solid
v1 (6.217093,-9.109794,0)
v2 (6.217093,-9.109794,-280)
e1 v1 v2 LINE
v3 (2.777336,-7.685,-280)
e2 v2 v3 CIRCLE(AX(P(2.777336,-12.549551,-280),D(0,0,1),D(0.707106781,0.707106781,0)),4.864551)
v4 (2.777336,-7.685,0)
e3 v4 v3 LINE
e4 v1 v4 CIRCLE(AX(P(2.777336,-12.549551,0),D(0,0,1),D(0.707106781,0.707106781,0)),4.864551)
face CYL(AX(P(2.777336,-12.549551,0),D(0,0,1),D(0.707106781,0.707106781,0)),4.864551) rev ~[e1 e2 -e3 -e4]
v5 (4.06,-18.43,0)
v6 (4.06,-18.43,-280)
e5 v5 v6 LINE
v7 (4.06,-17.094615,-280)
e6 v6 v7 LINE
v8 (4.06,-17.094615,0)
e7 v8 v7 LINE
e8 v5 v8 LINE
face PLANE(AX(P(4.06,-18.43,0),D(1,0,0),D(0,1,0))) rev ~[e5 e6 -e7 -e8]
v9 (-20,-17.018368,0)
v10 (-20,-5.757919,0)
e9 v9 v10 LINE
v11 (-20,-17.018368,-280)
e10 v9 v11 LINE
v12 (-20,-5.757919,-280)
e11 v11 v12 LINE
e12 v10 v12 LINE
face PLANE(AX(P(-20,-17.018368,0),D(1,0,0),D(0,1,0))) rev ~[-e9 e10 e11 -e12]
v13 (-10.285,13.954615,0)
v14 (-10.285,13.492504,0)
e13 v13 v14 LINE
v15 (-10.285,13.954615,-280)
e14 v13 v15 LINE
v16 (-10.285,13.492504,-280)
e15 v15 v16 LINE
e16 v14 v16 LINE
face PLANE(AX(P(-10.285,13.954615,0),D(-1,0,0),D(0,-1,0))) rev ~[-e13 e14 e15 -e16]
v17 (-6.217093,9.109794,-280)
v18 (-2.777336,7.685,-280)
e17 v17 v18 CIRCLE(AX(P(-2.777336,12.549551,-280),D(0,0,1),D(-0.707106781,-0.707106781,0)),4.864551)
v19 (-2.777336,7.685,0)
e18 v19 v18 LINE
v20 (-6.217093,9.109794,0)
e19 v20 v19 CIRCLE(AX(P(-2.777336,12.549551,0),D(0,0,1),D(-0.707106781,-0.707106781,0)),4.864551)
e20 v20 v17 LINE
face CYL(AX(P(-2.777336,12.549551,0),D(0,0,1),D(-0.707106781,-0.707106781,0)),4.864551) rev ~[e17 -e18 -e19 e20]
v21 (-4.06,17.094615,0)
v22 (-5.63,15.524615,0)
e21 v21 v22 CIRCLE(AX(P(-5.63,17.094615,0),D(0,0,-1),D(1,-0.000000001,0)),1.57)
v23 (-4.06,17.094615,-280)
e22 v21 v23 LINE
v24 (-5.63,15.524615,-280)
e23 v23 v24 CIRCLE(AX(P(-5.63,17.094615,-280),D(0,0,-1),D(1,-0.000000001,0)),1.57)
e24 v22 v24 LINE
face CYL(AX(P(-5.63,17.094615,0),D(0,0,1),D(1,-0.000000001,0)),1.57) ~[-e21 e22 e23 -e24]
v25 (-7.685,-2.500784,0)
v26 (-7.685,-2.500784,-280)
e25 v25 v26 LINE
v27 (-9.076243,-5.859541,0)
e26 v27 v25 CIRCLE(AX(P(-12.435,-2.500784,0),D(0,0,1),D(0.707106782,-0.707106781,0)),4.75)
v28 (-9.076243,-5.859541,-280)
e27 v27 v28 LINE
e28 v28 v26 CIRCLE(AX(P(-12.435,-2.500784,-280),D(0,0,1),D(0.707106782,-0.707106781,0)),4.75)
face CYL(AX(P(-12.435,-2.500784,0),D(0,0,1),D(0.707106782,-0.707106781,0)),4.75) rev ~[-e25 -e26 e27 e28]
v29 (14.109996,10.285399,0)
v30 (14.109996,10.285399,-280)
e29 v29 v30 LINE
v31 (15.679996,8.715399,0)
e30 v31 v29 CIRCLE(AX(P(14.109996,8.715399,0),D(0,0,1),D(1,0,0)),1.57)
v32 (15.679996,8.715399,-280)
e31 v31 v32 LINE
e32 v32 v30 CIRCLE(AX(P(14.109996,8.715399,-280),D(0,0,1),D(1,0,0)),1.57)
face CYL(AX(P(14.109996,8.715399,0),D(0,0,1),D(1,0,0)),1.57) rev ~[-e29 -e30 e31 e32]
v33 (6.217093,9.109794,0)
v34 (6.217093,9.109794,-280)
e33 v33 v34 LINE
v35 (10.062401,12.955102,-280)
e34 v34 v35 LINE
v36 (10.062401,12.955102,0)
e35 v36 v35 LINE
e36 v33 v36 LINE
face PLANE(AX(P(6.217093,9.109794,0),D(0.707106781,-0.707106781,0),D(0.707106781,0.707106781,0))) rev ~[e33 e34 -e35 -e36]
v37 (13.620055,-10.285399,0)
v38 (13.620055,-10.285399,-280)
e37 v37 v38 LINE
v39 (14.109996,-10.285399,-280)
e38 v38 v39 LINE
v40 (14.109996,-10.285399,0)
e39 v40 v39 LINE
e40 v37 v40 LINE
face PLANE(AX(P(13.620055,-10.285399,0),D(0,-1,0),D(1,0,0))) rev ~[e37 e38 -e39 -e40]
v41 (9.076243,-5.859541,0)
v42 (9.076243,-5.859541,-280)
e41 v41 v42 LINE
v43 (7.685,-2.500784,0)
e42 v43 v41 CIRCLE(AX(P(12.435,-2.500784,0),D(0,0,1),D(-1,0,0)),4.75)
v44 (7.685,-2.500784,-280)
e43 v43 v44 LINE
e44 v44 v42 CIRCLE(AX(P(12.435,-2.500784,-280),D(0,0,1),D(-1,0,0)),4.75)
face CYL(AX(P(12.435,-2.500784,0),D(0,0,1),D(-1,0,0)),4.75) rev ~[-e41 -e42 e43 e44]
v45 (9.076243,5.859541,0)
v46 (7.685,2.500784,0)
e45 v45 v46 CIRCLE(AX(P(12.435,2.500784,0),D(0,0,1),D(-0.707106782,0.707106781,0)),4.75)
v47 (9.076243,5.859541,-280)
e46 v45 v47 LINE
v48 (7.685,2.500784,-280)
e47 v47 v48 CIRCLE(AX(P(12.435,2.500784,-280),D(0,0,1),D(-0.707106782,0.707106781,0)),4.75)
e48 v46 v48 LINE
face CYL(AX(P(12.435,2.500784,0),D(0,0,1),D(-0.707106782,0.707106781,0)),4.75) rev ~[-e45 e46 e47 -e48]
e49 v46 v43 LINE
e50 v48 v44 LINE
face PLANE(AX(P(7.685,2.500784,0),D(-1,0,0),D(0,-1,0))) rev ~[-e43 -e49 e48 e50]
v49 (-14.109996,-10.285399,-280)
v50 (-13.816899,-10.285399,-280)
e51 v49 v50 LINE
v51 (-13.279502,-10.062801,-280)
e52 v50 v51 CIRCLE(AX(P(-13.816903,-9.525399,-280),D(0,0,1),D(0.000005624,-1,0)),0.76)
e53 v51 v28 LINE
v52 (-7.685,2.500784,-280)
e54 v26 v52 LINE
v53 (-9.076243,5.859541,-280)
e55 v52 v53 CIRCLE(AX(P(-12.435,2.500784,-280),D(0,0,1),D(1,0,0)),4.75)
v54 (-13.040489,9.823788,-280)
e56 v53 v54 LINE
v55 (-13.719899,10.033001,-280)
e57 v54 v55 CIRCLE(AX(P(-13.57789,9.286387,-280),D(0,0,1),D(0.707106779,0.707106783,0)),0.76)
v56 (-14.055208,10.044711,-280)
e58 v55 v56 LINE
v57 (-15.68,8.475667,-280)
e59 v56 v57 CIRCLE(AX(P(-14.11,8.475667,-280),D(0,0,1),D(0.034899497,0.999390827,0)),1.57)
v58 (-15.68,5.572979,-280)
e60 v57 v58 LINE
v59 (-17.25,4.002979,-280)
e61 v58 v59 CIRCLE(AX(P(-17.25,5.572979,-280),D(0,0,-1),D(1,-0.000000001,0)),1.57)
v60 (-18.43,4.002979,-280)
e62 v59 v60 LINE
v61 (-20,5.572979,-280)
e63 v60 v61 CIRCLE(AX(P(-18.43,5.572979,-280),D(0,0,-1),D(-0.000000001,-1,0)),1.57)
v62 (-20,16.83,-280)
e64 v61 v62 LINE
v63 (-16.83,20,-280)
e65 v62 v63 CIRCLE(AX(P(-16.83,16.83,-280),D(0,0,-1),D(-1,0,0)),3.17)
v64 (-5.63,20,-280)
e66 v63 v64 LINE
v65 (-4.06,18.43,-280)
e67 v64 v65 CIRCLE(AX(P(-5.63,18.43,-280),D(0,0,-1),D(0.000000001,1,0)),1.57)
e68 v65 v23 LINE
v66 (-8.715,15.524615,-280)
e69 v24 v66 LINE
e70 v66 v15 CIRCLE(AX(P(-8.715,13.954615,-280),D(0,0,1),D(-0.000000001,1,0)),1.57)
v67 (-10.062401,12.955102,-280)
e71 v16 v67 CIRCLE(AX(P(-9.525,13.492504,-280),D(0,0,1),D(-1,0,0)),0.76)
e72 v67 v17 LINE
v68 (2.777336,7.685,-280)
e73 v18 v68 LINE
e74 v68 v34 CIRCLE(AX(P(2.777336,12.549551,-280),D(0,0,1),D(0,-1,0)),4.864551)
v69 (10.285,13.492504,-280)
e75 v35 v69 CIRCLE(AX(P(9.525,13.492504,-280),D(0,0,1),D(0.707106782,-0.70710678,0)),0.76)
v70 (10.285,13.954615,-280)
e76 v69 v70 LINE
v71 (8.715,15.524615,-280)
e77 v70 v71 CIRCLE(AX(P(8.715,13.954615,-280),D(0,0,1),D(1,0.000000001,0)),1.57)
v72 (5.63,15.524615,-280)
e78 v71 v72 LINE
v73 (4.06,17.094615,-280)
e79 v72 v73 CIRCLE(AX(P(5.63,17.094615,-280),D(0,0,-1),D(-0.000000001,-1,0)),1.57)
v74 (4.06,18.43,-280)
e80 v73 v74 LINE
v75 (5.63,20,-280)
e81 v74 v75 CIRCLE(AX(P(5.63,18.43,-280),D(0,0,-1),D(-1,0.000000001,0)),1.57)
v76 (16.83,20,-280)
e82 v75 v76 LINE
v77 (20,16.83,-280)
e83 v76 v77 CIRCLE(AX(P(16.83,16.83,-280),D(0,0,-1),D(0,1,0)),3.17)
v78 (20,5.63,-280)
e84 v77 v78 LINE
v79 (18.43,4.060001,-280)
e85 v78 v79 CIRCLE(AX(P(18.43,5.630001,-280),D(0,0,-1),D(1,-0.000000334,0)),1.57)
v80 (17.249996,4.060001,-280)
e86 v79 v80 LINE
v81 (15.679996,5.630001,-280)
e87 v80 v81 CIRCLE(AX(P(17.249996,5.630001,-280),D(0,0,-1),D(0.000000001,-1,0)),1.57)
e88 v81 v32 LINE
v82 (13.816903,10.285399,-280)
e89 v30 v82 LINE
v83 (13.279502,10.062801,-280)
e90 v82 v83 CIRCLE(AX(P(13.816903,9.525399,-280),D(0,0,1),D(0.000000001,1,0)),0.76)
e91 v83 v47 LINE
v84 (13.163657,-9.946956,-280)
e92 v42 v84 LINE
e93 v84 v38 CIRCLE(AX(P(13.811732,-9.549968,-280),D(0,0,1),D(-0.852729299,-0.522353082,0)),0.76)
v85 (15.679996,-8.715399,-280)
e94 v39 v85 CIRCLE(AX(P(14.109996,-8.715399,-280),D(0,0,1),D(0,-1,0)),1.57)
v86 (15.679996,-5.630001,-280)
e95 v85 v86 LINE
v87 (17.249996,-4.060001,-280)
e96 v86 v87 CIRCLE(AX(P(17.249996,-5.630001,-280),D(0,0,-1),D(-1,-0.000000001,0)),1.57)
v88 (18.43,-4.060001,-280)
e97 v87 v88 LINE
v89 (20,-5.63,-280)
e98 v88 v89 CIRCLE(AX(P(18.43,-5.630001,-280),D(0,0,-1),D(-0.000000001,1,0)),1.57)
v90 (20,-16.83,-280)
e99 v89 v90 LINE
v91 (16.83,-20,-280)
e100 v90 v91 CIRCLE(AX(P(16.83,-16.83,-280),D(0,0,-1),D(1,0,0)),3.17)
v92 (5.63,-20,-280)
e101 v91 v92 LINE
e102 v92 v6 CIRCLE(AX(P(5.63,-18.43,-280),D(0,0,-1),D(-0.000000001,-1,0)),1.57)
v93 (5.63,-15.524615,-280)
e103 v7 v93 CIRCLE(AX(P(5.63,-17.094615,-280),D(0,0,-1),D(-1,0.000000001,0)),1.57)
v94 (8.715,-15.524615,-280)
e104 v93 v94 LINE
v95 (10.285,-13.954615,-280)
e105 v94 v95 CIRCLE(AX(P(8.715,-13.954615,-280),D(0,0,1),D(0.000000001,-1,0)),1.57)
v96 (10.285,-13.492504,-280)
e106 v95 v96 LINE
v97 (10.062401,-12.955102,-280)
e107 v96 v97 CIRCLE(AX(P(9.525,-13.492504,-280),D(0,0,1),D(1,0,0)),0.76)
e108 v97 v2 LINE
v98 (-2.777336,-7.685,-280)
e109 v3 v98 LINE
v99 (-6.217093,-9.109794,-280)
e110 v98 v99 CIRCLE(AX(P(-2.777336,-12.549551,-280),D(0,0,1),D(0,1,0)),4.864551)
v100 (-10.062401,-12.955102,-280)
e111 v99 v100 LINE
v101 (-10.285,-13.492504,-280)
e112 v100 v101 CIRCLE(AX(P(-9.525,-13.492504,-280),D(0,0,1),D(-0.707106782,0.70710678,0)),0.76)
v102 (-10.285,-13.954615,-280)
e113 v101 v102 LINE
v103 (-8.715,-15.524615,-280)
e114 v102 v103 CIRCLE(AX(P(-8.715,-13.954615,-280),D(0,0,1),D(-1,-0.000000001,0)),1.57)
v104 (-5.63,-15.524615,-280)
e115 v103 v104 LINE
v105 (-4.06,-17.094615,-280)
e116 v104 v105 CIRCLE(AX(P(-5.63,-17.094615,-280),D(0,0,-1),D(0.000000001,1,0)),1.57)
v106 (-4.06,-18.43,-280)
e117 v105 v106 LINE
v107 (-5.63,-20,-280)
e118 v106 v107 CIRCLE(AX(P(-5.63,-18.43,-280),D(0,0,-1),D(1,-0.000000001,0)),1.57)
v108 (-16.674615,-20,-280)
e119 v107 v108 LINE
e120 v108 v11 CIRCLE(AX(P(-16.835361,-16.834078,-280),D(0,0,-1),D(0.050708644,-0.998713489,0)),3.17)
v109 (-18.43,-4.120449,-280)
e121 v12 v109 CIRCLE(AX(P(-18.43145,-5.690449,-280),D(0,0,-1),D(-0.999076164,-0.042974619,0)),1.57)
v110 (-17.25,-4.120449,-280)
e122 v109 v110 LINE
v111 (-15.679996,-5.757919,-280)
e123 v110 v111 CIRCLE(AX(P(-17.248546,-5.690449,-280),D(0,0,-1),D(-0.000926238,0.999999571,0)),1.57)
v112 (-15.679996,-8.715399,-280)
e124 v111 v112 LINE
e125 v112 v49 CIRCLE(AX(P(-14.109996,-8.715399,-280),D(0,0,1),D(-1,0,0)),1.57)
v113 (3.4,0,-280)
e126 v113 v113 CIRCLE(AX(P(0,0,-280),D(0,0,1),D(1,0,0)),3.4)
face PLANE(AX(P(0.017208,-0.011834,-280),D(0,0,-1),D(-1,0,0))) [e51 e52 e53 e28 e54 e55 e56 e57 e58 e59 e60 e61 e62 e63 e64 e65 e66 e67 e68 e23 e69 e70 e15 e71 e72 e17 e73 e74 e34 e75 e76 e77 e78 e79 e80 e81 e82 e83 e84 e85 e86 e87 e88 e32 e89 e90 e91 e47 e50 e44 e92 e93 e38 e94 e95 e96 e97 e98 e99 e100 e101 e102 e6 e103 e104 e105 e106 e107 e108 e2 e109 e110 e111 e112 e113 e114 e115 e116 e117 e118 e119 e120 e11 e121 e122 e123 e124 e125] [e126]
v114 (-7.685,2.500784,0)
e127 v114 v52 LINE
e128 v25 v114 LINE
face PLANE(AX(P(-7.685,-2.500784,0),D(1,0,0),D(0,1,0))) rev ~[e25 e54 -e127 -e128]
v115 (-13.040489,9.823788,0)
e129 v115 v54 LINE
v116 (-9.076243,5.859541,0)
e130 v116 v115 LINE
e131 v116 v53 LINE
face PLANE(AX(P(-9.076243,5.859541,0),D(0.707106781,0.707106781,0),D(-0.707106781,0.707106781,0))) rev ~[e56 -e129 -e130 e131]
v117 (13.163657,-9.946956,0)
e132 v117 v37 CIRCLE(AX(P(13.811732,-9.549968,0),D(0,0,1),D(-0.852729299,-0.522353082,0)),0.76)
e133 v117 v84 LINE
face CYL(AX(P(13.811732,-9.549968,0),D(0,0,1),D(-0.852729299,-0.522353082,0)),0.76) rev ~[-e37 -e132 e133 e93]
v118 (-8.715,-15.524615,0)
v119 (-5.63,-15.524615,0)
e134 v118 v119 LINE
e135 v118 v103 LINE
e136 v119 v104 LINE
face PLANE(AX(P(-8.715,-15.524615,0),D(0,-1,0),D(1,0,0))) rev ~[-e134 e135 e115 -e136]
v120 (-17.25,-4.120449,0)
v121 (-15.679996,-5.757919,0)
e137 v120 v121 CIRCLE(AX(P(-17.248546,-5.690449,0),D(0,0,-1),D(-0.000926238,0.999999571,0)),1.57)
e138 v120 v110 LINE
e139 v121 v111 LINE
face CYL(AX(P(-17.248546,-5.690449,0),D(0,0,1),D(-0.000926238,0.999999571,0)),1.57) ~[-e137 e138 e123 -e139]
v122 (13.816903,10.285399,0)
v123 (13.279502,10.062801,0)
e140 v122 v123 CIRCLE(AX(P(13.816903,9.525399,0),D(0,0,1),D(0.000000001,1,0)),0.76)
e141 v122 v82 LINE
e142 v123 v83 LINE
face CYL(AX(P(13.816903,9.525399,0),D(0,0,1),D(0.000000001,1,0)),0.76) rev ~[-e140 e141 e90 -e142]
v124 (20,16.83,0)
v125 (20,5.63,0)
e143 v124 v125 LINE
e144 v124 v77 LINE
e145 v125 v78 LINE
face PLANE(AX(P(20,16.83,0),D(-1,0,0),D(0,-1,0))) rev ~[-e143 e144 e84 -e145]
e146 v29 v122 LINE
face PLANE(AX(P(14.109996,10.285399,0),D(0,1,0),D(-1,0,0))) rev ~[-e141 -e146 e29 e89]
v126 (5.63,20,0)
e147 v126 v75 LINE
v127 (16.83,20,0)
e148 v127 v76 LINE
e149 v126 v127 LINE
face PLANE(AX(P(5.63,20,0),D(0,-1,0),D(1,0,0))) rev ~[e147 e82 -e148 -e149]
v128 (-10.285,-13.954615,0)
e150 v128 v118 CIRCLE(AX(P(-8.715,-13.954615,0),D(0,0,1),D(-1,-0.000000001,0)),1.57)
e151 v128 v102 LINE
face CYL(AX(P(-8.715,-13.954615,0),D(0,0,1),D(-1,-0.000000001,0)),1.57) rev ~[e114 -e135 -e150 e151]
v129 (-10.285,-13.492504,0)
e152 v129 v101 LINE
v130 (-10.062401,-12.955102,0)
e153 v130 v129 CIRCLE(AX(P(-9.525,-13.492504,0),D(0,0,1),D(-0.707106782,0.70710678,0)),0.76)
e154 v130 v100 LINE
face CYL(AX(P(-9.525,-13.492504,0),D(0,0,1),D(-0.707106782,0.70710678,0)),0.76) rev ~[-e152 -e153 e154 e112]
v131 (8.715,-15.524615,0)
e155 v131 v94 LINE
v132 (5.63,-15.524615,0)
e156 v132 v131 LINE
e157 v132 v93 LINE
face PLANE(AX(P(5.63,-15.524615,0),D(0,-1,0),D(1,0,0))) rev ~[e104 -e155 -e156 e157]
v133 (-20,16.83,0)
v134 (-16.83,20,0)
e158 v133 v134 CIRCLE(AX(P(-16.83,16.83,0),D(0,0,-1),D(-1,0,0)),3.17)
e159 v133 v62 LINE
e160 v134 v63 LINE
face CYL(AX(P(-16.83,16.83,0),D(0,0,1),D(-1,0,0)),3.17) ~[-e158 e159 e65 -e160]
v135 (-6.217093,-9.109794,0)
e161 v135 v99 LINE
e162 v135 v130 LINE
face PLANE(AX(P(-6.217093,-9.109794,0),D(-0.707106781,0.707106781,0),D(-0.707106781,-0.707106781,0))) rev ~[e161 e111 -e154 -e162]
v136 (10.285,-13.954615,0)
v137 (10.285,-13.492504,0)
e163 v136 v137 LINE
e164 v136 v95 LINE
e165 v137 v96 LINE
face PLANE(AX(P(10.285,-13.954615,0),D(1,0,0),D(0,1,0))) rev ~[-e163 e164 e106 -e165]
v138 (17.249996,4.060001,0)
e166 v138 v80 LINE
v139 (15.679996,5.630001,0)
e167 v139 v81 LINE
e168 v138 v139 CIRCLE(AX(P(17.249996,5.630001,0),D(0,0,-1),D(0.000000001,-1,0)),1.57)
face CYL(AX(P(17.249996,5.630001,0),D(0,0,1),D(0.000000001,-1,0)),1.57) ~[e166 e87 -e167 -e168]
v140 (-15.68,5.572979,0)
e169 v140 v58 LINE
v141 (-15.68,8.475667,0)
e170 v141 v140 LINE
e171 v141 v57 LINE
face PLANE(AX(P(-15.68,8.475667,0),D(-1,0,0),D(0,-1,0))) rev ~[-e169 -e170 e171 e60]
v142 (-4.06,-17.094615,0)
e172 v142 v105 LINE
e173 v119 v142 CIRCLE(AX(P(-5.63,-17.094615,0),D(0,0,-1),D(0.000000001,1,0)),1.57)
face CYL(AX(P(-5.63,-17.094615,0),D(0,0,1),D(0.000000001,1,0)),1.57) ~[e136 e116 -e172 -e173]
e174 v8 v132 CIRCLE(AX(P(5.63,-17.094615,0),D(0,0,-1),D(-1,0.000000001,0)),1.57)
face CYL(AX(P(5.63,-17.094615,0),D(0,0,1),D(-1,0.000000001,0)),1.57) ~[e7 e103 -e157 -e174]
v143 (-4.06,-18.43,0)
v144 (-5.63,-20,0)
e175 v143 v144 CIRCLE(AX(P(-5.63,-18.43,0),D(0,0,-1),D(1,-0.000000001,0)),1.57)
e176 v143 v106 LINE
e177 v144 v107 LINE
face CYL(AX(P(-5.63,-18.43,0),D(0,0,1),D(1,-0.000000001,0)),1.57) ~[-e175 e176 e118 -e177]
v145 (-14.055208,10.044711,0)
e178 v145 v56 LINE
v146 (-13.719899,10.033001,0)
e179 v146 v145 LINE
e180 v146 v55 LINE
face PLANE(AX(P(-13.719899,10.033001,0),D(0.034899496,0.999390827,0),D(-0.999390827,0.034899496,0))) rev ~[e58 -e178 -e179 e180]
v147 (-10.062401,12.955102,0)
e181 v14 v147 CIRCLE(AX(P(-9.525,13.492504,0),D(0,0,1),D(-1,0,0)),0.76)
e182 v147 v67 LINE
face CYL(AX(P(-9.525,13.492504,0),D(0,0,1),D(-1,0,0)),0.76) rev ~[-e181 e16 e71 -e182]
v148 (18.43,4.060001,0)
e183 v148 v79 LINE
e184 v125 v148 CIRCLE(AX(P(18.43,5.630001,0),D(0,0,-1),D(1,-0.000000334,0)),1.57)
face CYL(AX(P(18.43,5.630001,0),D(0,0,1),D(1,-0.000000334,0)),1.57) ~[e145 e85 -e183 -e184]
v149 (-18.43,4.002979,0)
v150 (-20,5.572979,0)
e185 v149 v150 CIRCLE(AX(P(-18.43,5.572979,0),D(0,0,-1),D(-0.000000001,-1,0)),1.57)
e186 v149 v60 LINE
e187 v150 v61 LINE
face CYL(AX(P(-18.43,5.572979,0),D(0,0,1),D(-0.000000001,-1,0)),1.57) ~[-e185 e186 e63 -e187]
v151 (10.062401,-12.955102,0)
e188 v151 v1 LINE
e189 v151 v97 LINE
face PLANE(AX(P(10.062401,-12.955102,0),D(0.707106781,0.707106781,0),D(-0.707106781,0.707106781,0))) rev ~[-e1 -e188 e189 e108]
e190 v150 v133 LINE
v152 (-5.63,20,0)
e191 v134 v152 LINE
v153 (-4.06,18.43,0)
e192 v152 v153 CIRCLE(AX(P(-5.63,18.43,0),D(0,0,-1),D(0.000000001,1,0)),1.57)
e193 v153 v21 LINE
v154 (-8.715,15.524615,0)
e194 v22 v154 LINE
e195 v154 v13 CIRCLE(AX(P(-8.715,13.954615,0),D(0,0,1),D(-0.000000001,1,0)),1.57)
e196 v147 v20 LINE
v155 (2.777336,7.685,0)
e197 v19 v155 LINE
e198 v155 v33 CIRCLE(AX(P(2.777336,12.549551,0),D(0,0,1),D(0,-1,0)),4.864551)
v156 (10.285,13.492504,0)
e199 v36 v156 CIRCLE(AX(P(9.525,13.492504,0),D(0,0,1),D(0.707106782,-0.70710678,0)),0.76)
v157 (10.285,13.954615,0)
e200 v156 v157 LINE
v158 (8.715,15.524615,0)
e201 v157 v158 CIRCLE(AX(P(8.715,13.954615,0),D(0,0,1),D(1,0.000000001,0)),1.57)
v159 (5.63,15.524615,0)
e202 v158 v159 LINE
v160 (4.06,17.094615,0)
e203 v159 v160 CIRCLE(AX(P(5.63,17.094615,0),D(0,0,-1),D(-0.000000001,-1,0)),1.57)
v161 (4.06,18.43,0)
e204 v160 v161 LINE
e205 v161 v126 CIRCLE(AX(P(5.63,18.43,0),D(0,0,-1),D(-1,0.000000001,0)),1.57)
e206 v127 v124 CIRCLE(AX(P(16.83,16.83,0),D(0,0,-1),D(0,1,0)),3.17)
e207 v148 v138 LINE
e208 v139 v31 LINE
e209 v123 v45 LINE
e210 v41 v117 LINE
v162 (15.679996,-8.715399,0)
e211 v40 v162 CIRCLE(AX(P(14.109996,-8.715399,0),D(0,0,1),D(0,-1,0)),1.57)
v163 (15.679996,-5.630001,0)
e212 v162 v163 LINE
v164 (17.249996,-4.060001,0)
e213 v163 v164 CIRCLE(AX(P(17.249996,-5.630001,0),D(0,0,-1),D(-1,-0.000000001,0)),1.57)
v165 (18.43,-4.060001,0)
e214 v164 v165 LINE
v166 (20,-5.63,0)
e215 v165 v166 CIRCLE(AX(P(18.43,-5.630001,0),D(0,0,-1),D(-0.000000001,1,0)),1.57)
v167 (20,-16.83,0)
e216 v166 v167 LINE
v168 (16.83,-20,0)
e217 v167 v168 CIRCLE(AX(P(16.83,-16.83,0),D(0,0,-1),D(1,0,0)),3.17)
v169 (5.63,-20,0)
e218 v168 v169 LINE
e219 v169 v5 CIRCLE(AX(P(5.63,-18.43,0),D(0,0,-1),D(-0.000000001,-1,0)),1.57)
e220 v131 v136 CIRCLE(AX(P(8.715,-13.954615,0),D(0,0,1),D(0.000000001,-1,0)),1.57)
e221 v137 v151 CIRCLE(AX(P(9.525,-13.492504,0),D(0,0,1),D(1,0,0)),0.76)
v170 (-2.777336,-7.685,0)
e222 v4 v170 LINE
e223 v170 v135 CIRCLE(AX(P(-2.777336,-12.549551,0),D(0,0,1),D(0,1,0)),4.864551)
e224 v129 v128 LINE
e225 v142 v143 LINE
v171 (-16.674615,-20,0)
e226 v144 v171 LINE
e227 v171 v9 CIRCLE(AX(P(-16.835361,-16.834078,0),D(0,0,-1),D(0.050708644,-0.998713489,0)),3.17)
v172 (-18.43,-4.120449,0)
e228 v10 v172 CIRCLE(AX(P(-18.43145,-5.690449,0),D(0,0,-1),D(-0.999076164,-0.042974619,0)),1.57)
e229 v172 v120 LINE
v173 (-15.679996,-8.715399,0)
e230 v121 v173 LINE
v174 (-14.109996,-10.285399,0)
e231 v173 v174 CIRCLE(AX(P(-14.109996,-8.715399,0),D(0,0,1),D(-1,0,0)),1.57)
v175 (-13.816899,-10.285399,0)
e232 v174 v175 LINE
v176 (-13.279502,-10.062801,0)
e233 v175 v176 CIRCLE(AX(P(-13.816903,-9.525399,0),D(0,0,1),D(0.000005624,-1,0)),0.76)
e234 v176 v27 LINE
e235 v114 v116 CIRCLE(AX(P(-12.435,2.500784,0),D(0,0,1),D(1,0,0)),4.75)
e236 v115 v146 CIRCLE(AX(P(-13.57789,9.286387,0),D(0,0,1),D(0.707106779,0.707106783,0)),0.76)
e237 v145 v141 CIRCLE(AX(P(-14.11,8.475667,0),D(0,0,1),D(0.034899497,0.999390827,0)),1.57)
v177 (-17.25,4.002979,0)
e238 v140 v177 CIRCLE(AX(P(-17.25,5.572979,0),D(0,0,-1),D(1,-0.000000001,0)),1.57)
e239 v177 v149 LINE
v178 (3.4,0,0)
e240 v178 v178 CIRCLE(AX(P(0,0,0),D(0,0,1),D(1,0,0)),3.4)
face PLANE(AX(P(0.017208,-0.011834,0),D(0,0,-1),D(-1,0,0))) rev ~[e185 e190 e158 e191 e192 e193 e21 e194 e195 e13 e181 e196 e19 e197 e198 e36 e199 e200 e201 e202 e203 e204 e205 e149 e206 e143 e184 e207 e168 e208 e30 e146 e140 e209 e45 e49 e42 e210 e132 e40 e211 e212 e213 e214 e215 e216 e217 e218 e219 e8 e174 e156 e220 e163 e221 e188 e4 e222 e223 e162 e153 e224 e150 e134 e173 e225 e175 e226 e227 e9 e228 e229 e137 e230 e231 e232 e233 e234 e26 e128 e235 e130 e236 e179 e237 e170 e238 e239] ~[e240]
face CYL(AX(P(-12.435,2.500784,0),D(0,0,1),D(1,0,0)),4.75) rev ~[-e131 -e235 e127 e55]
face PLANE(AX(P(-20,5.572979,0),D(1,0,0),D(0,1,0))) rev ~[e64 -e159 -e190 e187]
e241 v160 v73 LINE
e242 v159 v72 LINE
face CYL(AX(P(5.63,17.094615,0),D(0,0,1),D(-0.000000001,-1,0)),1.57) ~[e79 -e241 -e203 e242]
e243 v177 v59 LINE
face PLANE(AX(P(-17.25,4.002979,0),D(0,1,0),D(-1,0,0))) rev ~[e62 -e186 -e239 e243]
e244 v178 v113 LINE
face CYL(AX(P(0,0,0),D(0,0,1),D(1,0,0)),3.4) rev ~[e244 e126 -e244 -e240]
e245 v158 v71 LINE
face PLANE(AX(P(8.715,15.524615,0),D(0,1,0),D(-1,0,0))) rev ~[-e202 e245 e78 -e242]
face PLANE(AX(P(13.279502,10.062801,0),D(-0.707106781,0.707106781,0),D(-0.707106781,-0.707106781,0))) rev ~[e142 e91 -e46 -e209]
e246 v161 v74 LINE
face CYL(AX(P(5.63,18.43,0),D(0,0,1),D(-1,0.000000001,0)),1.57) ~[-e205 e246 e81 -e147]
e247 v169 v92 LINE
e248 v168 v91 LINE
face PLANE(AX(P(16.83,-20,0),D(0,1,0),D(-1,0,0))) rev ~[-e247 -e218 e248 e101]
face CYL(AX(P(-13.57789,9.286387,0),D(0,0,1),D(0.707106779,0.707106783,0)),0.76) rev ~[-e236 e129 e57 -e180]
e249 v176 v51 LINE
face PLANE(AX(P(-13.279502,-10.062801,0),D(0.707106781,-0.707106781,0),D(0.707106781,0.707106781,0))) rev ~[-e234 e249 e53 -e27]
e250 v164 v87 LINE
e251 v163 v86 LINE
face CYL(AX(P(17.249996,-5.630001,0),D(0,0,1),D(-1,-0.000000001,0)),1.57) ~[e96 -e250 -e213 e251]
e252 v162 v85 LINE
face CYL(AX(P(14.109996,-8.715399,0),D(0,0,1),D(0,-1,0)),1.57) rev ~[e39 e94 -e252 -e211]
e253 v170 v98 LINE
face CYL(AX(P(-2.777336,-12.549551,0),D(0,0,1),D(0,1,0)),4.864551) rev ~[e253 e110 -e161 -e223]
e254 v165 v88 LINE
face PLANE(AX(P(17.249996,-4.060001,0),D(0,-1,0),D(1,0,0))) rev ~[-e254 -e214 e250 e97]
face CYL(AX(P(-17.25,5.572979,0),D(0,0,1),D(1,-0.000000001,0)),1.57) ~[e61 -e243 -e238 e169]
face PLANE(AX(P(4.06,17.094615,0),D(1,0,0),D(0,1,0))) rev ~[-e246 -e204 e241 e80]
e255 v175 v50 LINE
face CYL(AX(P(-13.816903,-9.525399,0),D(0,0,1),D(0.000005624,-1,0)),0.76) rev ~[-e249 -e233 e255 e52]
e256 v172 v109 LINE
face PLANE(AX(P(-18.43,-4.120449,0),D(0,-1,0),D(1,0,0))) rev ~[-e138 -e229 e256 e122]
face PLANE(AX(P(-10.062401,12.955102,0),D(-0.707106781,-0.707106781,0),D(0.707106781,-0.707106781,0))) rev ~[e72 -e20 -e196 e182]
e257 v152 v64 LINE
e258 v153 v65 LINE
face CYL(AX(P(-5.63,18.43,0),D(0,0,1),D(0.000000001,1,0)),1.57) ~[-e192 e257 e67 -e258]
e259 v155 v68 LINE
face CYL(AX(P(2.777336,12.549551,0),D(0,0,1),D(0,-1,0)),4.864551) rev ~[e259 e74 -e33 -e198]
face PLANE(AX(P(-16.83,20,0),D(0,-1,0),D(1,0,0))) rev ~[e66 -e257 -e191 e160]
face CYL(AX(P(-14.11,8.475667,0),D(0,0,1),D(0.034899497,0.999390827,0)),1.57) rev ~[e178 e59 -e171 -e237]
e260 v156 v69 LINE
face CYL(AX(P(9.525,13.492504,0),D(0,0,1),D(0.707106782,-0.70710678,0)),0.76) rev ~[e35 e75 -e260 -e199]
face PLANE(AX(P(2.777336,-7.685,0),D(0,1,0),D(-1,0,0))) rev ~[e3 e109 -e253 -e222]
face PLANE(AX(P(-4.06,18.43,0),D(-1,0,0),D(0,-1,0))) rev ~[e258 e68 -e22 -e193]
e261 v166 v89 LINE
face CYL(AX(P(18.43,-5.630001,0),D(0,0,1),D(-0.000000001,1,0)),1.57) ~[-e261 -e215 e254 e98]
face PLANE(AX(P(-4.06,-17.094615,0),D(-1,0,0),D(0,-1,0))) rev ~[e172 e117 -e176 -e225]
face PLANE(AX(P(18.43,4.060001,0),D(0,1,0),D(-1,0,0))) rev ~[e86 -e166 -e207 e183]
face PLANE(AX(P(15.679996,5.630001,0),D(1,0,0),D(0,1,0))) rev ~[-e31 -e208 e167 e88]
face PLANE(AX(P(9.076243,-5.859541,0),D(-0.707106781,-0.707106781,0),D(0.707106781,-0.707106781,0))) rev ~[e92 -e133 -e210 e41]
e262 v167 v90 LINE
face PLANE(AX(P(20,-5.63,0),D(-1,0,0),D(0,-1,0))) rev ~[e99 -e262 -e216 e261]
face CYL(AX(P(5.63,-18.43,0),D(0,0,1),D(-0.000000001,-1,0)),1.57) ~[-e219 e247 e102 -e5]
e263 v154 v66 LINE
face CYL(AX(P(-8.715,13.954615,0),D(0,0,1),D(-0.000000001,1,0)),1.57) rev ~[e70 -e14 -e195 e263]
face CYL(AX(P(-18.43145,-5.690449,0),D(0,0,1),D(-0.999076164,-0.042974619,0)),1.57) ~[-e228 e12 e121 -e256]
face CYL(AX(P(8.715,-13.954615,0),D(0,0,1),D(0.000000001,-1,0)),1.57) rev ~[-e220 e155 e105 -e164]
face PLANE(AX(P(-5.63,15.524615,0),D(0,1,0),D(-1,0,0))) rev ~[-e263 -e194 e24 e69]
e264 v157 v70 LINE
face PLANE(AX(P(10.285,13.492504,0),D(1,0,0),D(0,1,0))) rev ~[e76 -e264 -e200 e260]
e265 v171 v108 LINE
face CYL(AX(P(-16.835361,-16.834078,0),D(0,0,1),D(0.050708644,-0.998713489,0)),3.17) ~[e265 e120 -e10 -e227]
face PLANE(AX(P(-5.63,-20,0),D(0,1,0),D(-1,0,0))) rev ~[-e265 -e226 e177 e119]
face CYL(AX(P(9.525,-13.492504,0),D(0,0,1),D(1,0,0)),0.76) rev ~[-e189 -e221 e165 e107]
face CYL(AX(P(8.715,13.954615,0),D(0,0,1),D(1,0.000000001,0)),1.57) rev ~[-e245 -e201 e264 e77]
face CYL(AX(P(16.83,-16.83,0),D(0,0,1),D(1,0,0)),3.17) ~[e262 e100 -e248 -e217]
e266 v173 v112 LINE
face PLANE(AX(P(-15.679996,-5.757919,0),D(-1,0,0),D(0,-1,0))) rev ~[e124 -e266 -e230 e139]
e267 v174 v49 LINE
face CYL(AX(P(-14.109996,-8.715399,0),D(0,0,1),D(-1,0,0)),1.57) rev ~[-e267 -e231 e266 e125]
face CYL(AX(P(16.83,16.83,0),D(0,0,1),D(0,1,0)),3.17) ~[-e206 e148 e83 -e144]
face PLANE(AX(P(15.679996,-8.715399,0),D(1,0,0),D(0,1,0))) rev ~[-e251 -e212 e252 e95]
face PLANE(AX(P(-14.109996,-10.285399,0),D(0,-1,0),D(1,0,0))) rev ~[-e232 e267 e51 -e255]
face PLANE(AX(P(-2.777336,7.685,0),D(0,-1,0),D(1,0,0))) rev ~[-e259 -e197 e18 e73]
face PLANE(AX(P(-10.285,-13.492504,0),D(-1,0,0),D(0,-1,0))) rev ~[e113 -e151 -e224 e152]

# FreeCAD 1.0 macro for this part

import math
import FreeCAD as App
import Part
import Sketcher

V = App.Vector
Q = App.Units.Quantity

doc = App.newDocument("Part")
body = doc.addObject("PartDesign::Body", "Body")

# Sketch on XY plane
sketch1 = body.newObject("Sketcher::SketchObject", "Sketch")
sketch1.AttachmentSupport = (doc.getObject("XY_Plane"), [""])
sketch1.MapMode = "FlatFace"
sketch1.addGeometry(Part.LineSegment(V(-5.63, -15.52, 0), V(-8.71, -15.52, 0)), False)
sketch1.addGeometry(Part.ArcOfCircle(Part.Circle(V(-8.71, -13.95, 0), V(0, 0, 1), 1.57), math.radians(-180), math.radians(-90)), False)
sketch1.addGeometry(Part.LineSegment(V(-10.29, -13.95, 0), V(-10.29, -13.49, 0)), False)
sketch1.addGeometry(Part.ArcOfCircle(Part.Circle(V(-9.52, -13.49, 0), V(0, 0, 1), 0.76), math.radians(135), math.radians(180)), False)
sketch1.addGeometry(Part.LineSegment(V(-10.06, -12.96, 0), V(-6.22, -9.11, 0)), False)
sketch1.addGeometry(Part.ArcOfCircle(Part.Circle(V(-2.78, -12.55, 0), V(0, 0, 1), 4.86), math.radians(90), math.radians(135)), False)
sketch1.addGeometry(Part.LineSegment(V(-2.78, -7.68, 0), V(2.78, -7.68, 0)), False)
sketch1.addGeometry(Part.ArcOfCircle(Part.Circle(V(2.78, -12.55, 0), V(0, 0, 1), 4.86), math.radians(45), math.radians(90)), False)
sketch1.addGeometry(Part.LineSegment(V(6.22, -9.11, 0), V(10.06, -12.96, 0)), False)
sketch1.addGeometry(Part.ArcOfCircle(Part.Circle(V(9.52, -13.49, 0), V(0, 0, 1), 0.76), math.radians(0), math.radians(45)), False)
sketch1.addGeometry(Part.LineSegment(V(10.29, -13.49, 0), V(10.29, -13.95, 0)), False)
sketch1.addGeometry(Part.ArcOfCircle(Part.Circle(V(8.71, -13.95, 0), V(0, 0, 1), 1.57), math.radians(-90), math.radians(0)), False)
sketch1.addGeometry(Part.LineSegment(V(8.71, -15.52, 0), V(5.63, -15.52, 0)), False)
sketch1.addGeometry(Part.ArcOfCircle(Part.Circle(V(5.63, -17.09, 0), V(0, 0, 1), 1.57), math.radians(90), math.radians(180)), False)
sketch1.addGeometry(Part.LineSegment(V(4.06, -17.09, 0), V(4.06, -18.43, 0)), False)
sketch1.addGeometry(Part.ArcOfCircle(Part.Circle(V(5.63, -18.43, 0), V(0, 0, 1), 1.57), math.radians(-180), math.radians(-90)), False)
sketch1.addGeometry(Part.LineSegment(V(5.63, -20, 0), V(16.83, -20, 0)), False)
sketch1.addGeometry(Part.ArcOfCircle(Part.Circle(V(16.83, -16.83, 0), V(0, 0, 1), 3.17), math.radians(-90), math.radians(0)), False)
sketch1.addGeometry(Part.LineSegment(V(20, -16.83, 0), V(20, -5.63, 0)), False)
sketch1.addGeometry(Part.ArcOfCircle(Part.Circle(V(18.43, -5.63, 0), V(0, 0, 1), 1.57), math.radians(0), math.radians(90)), False)
sketch1.addGeometry(Part.LineSegment(V(18.43, -4.06, 0), V(17.25, -4.06, 0)), False)
sketch1.addGeometry(Part.ArcOfCircle(Part.Circle(V(17.25, -5.63, 0), V(0, 0, 1), 1.57), math.radians(90), math.radians(180)), False)
sketch1.addGeometry(Part.LineSegment(V(15.68, -5.63, 0), V(15.68, -8.72, 0)), False)
sketch1.addGeometry(Part.ArcOfCircle(Part.Circle(V(14.11, -8.72, 0), V(0, 0, 1), 1.57), math.radians(-90), math.radians(0)), False)
sketch1.addGeometry(Part.LineSegment(V(14.11, -10.29, 0), V(13.62, -10.29, 0)), False)
sketch1.addGeometry(Part.ArcOfCircle(Part.Circle(V(13.81, -9.55, 0), V(0, 0, 1), 0.76), math.radians(-149), math.radians(-105)), False)
sketch1.addGeometry(Part.LineSegment(V(13.16, -9.95, 0), V(9.08, -5.86, 0)), False)
sketch1.addGeometry(Part.ArcOfCircle(Part.Circle(V(12.44, -2.5, 0), V(0, 0, 1), 4.75), math.radians(-180), math.radians(-135)), False)
sketch1.addGeometry(Part.LineSegment(V(7.68, -2.5, 0), V(7.68, 2.5, 0)), False)
sketch1.addGeometry(Part.ArcOfCircle(Part.Circle(V(12.44, 2.5, 0), V(0, 0, 1), 4.75), math.radians(135), math.radians(180)), False)
sketch1.addGeometry(Part.LineSegment(V(9.08, 5.86, 0), V(13.28, 10.06, 0)), False)
sketch1.addGeometry(Part.ArcOfCircle(Part.Circle(V(13.82, 9.53, 0), V(0, 0, 1), 0.76), math.radians(90), math.radians(135)), False)
sketch1.addGeometry(Part.LineSegment(V(13.82, 10.29, 0), V(14.11, 10.29, 0)), False)
sketch1.addGeometry(Part.ArcOfCircle(Part.Circle(V(14.11, 8.72, 0), V(0, 0, 1), 1.57), math.radians(0), math.radians(90)), False)
sketch1.addGeometry(Part.LineSegment(V(15.68, 8.72, 0), V(15.68, 5.63, 0)), False)
sketch1.addGeometry(Part.ArcOfCircle(Part.Circle(V(17.25, 5.63, 0), V(0, 0, 1), 1.57), math.radians(180), math.radians(270)), False)
sketch1.addGeometry(Part.LineSegment(V(17.25, 4.06, 0), V(18.43, 4.06, 0)), False)
sketch1.addGeometry(Part.ArcOfCircle(Part.Circle(V(18.43, 5.63, 0), V(0, 0, 1), 1.57), math.radians(-90), math.radians(0)), False)
sketch1.addGeometry(Part.LineSegment(V(20, 5.63, 0), V(20, 16.83, 0)), False)
sketch1.addGeometry(Part.ArcOfCircle(Part.Circle(V(16.83, 16.83, 0), V(0, 0, 1), 3.17), math.radians(0), math.radians(90)), False)
sketch1.addGeometry(Part.LineSegment(V(16.83, 20, 0), V(5.63, 20, 0)), False)
sketch1.addGeometry(Part.ArcOfCircle(Part.Circle(V(5.63, 18.43, 0), V(0, 0, 1), 1.57), math.radians(90), math.radians(180)), False)
sketch1.addGeometry(Part.LineSegment(V(4.06, 18.43, 0), V(4.06, 17.09, 0)), False)
sketch1.addGeometry(Part.ArcOfCircle(Part.Circle(V(5.63, 17.09, 0), V(0, 0, 1), 1.57), math.radians(-180), math.radians(-90)), False)
sketch1.addGeometry(Part.LineSegment(V(5.63, 15.52, 0), V(8.71, 15.52, 0)), False)
sketch1.addGeometry(Part.ArcOfCircle(Part.Circle(V(8.71, 13.95, 0), V(0, 0, 1), 1.57), math.radians(0), math.radians(90)), False)
sketch1.addGeometry(Part.LineSegment(V(10.29, 13.95, 0), V(10.29, 13.49, 0)), False)
sketch1.addGeometry(Part.ArcOfCircle(Part.Circle(V(9.52, 13.49, 0), V(0, 0, 1), 0.76), math.radians(-45), math.radians(0)), False)
sketch1.addGeometry(Part.LineSegment(V(10.06, 12.96, 0), V(6.22, 9.11, 0)), False)
sketch1.addGeometry(Part.ArcOfCircle(Part.Circle(V(2.78, 12.55, 0), V(0, 0, 1), 4.86), math.radians(-90), math.radians(-45)), False)
sketch1.addGeometry(Part.LineSegment(V(2.78, 7.68, 0), V(-2.78, 7.68, 0)), False)
sketch1.addGeometry(Part.ArcOfCircle(Part.Circle(V(-2.78, 12.55, 0), V(0, 0, 1), 4.86), math.radians(-135), math.radians(-90)), False)
sketch1.addGeometry(Part.LineSegment(V(-6.22, 9.11, 0), V(-10.06, 12.96, 0)), False)
sketch1.addGeometry(Part.ArcOfCircle(Part.Circle(V(-9.52, 13.49, 0), V(0, 0, 1), 0.76), math.radians(180), math.radians(225)), False)
sketch1.addGeometry(Part.LineSegment(V(-10.29, 13.49, 0), V(-10.29, 13.95, 0)), False)
sketch1.addGeometry(Part.ArcOfCircle(Part.Circle(V(-8.71, 13.95, 0), V(0, 0, 1), 1.57), math.radians(90), math.radians(180)), False)
sketch1.addGeometry(Part.LineSegment(V(-8.71, 15.52, 0), V(-5.63, 15.52, 0)), False)
sketch1.addGeometry(Part.ArcOfCircle(Part.Circle(V(-5.63, 17.09, 0), V(0, 0, 1), 1.57), math.radians(-90), math.radians(0)), False)
sketch1.addGeometry(Part.LineSegment(V(-4.06, 17.09, 0), V(-4.06, 18.43, 0)), False)
sketch1.addGeometry(Part.ArcOfCircle(Part.Circle(V(-5.63, 18.43, 0), V(0, 0, 1), 1.57), math.radians(0), math.radians(90)), False)
sketch1.addGeometry(Part.LineSegment(V(-5.63, 20, 0), V(-16.83, 20, 0)), False)
sketch1.addGeometry(Part.ArcOfCircle(Part.Circle(V(-16.83, 16.83, 0), V(0, 0, 1), 3.17), math.radians(90), math.radians(180)), False)
sketch1.addGeometry(Part.LineSegment(V(-20, 16.83, 0), V(-20, 5.57, 0)), False)
sketch1.addGeometry(Part.ArcOfCircle(Part.Circle(V(-18.43, 5.57, 0), V(0, 0, 1), 1.57), math.radians(-180), math.radians(-90)), False)
sketch1.addGeometry(Part.LineSegment(V(-18.43, 4, 0), V(-17.25, 4, 0)), False)
sketch1.addGeometry(Part.ArcOfCircle(Part.Circle(V(-17.25, 5.57, 0), V(0, 0, 1), 1.57), math.radians(-90), math.radians(0)), False)
sketch1.addGeometry(Part.LineSegment(V(-15.68, 5.57, 0), V(-15.68, 8.48, 0)), False)
sketch1.addGeometry(Part.ArcOfCircle(Part.Circle(V(-14.11, 8.48, 0), V(0, 0, 1), 1.57), math.radians(88), math.radians(180)), False)
sketch1.addGeometry(Part.LineSegment(V(-14.06, 10.04, 0), V(-13.72, 10.03, 0)), False)
sketch1.addGeometry(Part.ArcOfCircle(Part.Circle(V(-13.58, 9.29, 0), V(0, 0, 1), 0.76), math.radians(45), math.radians(101)), False)
sketch1.addGeometry(Part.LineSegment(V(-13.04, 9.82, 0), V(-9.08, 5.86, 0)), False)
sketch1.addGeometry(Part.ArcOfCircle(Part.Circle(V(-12.44, 2.5, 0), V(0, 0, 1), 4.75), math.radians(0), math.radians(45)), False)
sketch1.addGeometry(Part.LineSegment(V(-7.68, 2.5, 0), V(-7.68, -2.5, 0)), False)
sketch1.addGeometry(Part.ArcOfCircle(Part.Circle(V(-12.44, -2.5, 0), V(0, 0, 1), 4.75), math.radians(-45), math.radians(0)), False)
sketch1.addGeometry(Part.LineSegment(V(-9.08, -5.86, 0), V(-13.28, -10.06, 0)), False)
sketch1.addGeometry(Part.ArcOfCircle(Part.Circle(V(-13.82, -9.53, 0), V(0, 0, 1), 0.76), math.radians(-90), math.radians(-45)), False)
sketch1.addGeometry(Part.LineSegment(V(-13.82, -10.29, 0), V(-14.11, -10.29, 0)), False)
sketch1.addGeometry(Part.ArcOfCircle(Part.Circle(V(-14.11, -8.72, 0), V(0, 0, 1), 1.57), math.radians(180), math.radians(270)), False)
sketch1.addGeometry(Part.LineSegment(V(-15.68, -8.72, 0), V(-15.68, -5.76, 0)), False)
sketch1.addGeometry(Part.ArcOfCircle(Part.Circle(V(-17.25, -5.69, 0), V(0, 0, 1), 1.57), math.radians(-2), math.radians(90)), False)
sketch1.addGeometry(Part.LineSegment(V(-17.25, -4.12, 0), V(-18.43, -4.12, 0)), False)
sketch1.addGeometry(Part.ArcOfCircle(Part.Circle(V(-18.43, -5.69, 0), V(0, 0, 1), 1.57), math.radians(90), math.radians(182)), False)
sketch1.addGeometry(Part.LineSegment(V(-20, -5.76, 0), V(-20, -17.02, 0)), False)
sketch1.addGeometry(Part.ArcOfCircle(Part.Circle(V(-16.84, -16.83, 0), V(0, 0, 1), 3.17), math.radians(-177), math.radians(-87)), False)
sketch1.addGeometry(Part.LineSegment(V(-16.67, -20, 0), V(-5.63, -20, 0)), False)
sketch1.addGeometry(Part.ArcOfCircle(Part.Circle(V(-5.63, -18.43, 0), V(0, 0, 1), 1.57), math.radians(-90), math.radians(0)), False)
sketch1.addGeometry(Part.LineSegment(V(-4.06, -18.43, 0), V(-4.06, -17.09, 0)), False)
sketch1.addGeometry(Part.ArcOfCircle(Part.Circle(V(-5.63, -17.09, 0), V(0, 0, 1), 1.57), math.radians(0), math.radians(90)), False)
sketch1.addGeometry(Part.Circle(V(0, 0, 0), V(0, 0, 1), 3.4), False)
sketch1.addConstraint(Sketcher.Constraint("Tangent", 0, 2, 1, 2))
sketch1.addConstraint(Sketcher.Constraint("Tangent", 1, 1, 2, 1))
sketch1.addConstraint(Sketcher.Constraint("Tangent", 2, 2, 3, 2))
sketch1.addConstraint(Sketcher.Constraint("Tangent", 3, 1, 4, 1))
sketch1.addConstraint(Sketcher.Constraint("Tangent", 4, 2, 5, 2))
sketch1.addConstraint(Sketcher.Constraint("Tangent", 5, 1, 6, 1))
sketch1.addConstraint(Sketcher.Constraint("Tangent", 6, 2, 7, 2))
sketch1.addConstraint(Sketcher.Constraint("Tangent", 7, 1, 8, 1))
sketch1.addConstraint(Sketcher.Constraint("Tangent", 8, 2, 9, 2))
sketch1.addConstraint(Sketcher.Constraint("Tangent", 9, 1, 10, 1))
sketch1.addConstraint(Sketcher.Constraint("Tangent", 10, 2, 11, 2))
sketch1.addConstraint(Sketcher.Constraint("Tangent", 11, 1, 12, 1))
sketch1.addConstraint(Sketcher.Constraint("Tangent", 12, 2, 13, 1))
sketch1.addConstraint(Sketcher.Constraint("Tangent", 13, 2, 14, 1))
sketch1.addConstraint(Sketcher.Constraint("Tangent", 14, 2, 15, 1))
sketch1.addConstraint(Sketcher.Constraint("Tangent", 15, 2, 16, 1))
sketch1.addConstraint(Sketcher.Constraint("Tangent", 16, 2, 17, 1))
sketch1.addConstraint(Sketcher.Constraint("Tangent", 17, 2, 18, 1))
sketch1.addConstraint(Sketcher.Constraint("Tangent", 18, 2, 19, 1))
sketch1.addConstraint(Sketcher.Constraint("Tangent", 19, 2, 20, 1))
sketch1.addConstraint(Sketcher.Constraint("Tangent", 20, 2, 21, 1))
sketch1.addConstraint(Sketcher.Constraint("Tangent", 21, 2, 22, 1))
sketch1.addConstraint(Sketcher.Constraint("Tangent", 22, 2, 23, 2))
sketch1.addConstraint(Sketcher.Constraint("Tangent", 23, 1, 24, 1))
sketch1.addConstraint(Sketcher.Constraint("Coincident", 24, 2, 25, 2))
sketch1.addConstraint(Sketcher.Constraint("Coincident", 25, 1, 26, 1))
sketch1.addConstraint(Sketcher.Constraint("Tangent", 26, 2, 27, 2))
sketch1.addConstraint(Sketcher.Constraint("Tangent", 27, 1, 28, 1))
sketch1.addConstraint(Sketcher.Constraint("Tangent", 28, 2, 29, 2))
sketch1.addConstraint(Sketcher.Constraint("Tangent", 29, 1, 30, 1))
sketch1.addConstraint(Sketcher.Constraint("Tangent", 30, 2, 31, 2))
sketch1.addConstraint(Sketcher.Constraint("Tangent", 31, 1, 32, 1))
sketch1.addConstraint(Sketcher.Constraint("Tangent", 32, 2, 33, 2))
sketch1.addConstraint(Sketcher.Constraint("Tangent", 33, 1, 34, 1))
sketch1.addConstraint(Sketcher.Constraint("Tangent", 34, 2, 35, 1))
sketch1.addConstraint(Sketcher.Constraint("Tangent", 35, 2, 36, 1))
sketch1.addConstraint(Sketcher.Constraint("Tangent", 36, 2, 37, 1))
sketch1.addConstraint(Sketcher.Constraint("Tangent", 37, 2, 38, 1))
sketch1.addConstraint(Sketcher.Constraint("Tangent", 38, 2, 39, 1))
sketch1.addConstraint(Sketcher.Constraint("Tangent", 39, 2, 40, 1))
sketch1.addConstraint(Sketcher.Constraint("Tangent", 40, 2, 41, 1))
sketch1.addConstraint(Sketcher.Constraint("Tangent", 41, 2, 42, 1))
sketch1.addConstraint(Sketcher.Constraint("Tangent", 42, 2, 43, 1))
sketch1.addConstraint(Sketcher.Constraint("Tangent", 43, 2, 44, 1))
sketch1.addConstraint(Sketcher.Constraint("Tangent", 44, 2, 45, 2))
sketch1.addConstraint(Sketcher.Constraint("Tangent", 45, 1, 46, 1))
sketch1.addConstraint(Sketcher.Constraint("Tangent", 46, 2, 47, 2))
sketch1.addConstraint(Sketcher.Constraint("Tangent", 47, 1, 48, 1))
sketch1.addConstraint(Sketcher.Constraint("Tangent", 48, 2, 49, 2))
sketch1.addConstraint(Sketcher.Constraint("Tangent", 49, 1, 50, 1))
sketch1.addConstraint(Sketcher.Constraint("Tangent", 50, 2, 51, 2))
sketch1.addConstraint(Sketcher.Constraint("Tangent", 51, 1, 52, 1))
sketch1.addConstraint(Sketcher.Constraint("Tangent", 52, 2, 53, 2))
sketch1.addConstraint(Sketcher.Constraint("Tangent", 53, 1, 54, 1))
sketch1.addConstraint(Sketcher.Constraint("Tangent", 54, 2, 55, 2))
sketch1.addConstraint(Sketcher.Constraint("Tangent", 55, 1, 56, 1))
sketch1.addConstraint(Sketcher.Constraint("Tangent", 56, 2, 57, 1))
sketch1.addConstraint(Sketcher.Constraint("Tangent", 57, 2, 58, 1))
sketch1.addConstraint(Sketcher.Constraint("Tangent", 58, 2, 59, 1))
sketch1.addConstraint(Sketcher.Constraint("Tangent", 59, 2, 60, 1))
sketch1.addConstraint(Sketcher.Constraint("Tangent", 60, 2, 61, 1))
sketch1.addConstraint(Sketcher.Constraint("Tangent", 61, 2, 62, 1))
sketch1.addConstraint(Sketcher.Constraint("Tangent", 62, 2, 63, 1))
sketch1.addConstraint(Sketcher.Constraint("Tangent", 63, 2, 64, 1))
sketch1.addConstraint(Sketcher.Constraint("Tangent", 64, 2, 65, 1))
sketch1.addConstraint(Sketcher.Constraint("Tangent", 65, 2, 66, 1))
sketch1.addConstraint(Sketcher.Constraint("Tangent", 66, 2, 67, 2))
sketch1.addConstraint(Sketcher.Constraint("Tangent", 67, 1, 68, 1))
sketch1.addConstraint(Sketcher.Constraint("Coincident", 68, 2, 69, 2))
sketch1.addConstraint(Sketcher.Constraint("Tangent", 69, 1, 70, 1))
sketch1.addConstraint(Sketcher.Constraint("Tangent", 70, 2, 71, 2))
sketch1.addConstraint(Sketcher.Constraint("Tangent", 71, 1, 72, 1))
sketch1.addConstraint(Sketcher.Constraint("Tangent", 72, 2, 73, 2))
sketch1.addConstraint(Sketcher.Constraint("Tangent", 73, 1, 74, 1))
sketch1.addConstraint(Sketcher.Constraint("Tangent", 74, 2, 75, 2))
sketch1.addConstraint(Sketcher.Constraint("Coincident", 75, 1, 76, 1))
sketch1.addConstraint(Sketcher.Constraint("Tangent", 76, 2, 77, 2))
sketch1.addConstraint(Sketcher.Constraint("Tangent", 77, 1, 78, 1))
sketch1.addConstraint(Sketcher.Constraint("Coincident", 78, 2, 79, 1))
sketch1.addConstraint(Sketcher.Constraint("Coincident", 79, 2, 80, 1))
sketch1.addConstraint(Sketcher.Constraint("Coincident", 80, 2, 81, 1))
sketch1.addConstraint(Sketcher.Constraint("Coincident", 81, 2, 82, 1))
sketch1.addConstraint(Sketcher.Constraint("Coincident", 82, 2, 83, 1))
sketch1.addConstraint(Sketcher.Constraint("Coincident", 83, 2, 84, 1))
sketch1.addConstraint(Sketcher.Constraint("Tangent", 84, 2, 85, 1))
sketch1.addConstraint(Sketcher.Constraint("Tangent", 85, 2, 86, 1))
sketch1.addConstraint(Sketcher.Constraint("Tangent", 86, 2, 87, 1))
sketch1.addConstraint(Sketcher.Constraint("Tangent", 87, 2, 0, 1))
sketch1.addConstraint(Sketcher.Constraint("Horizontal", 0))
sketch1.addConstraint(Sketcher.Constraint("Vertical", 2))
sketch1.addConstraint(Sketcher.Constraint("Horizontal", 6))
sketch1.addConstraint(Sketcher.Constraint("Vertical", 10))
sketch1.addConstraint(Sketcher.Constraint("Horizontal", 12))
sketch1.addConstraint(Sketcher.Constraint("Vertical", 14))
sketch1.addConstraint(Sketcher.Constraint("Horizontal", 16))
sketch1.addConstraint(Sketcher.Constraint("Vertical", 18))
sketch1.addConstraint(Sketcher.Constraint("Horizontal", 20))
sketch1.addConstraint(Sketcher.Constraint("Vertical", 22))
sketch1.addConstraint(Sketcher.Constraint("Horizontal", 24))
sketch1.addConstraint(Sketcher.Constraint("Vertical", 28))
sketch1.addConstraint(Sketcher.Constraint("Horizontal", 32))
sketch1.addConstraint(Sketcher.Constraint("Vertical", 34))
sketch1.addConstraint(Sketcher.Constraint("Horizontal", 36))
sketch1.addConstraint(Sketcher.Constraint("Vertical", 38))
sketch1.addConstraint(Sketcher.Constraint("Horizontal", 40))
sketch1.addConstraint(Sketcher.Constraint("Vertical", 42))
sketch1.addConstraint(Sketcher.Constraint("Horizontal", 44))
sketch1.addConstraint(Sketcher.Constraint("Vertical", 46))
sketch1.addConstraint(Sketcher.Constraint("Horizontal", 50))
sketch1.addConstraint(Sketcher.Constraint("Vertical", 54))
sketch1.addConstraint(Sketcher.Constraint("Horizontal", 56))
sketch1.addConstraint(Sketcher.Constraint("Vertical", 58))
sketch1.addConstraint(Sketcher.Constraint("Horizontal", 60))
sketch1.addConstraint(Sketcher.Constraint("Vertical", 62))
sketch1.addConstraint(Sketcher.Constraint("Horizontal", 64))
sketch1.addConstraint(Sketcher.Constraint("Vertical", 66))
sketch1.addConstraint(Sketcher.Constraint("Vertical", 72))
sketch1.addConstraint(Sketcher.Constraint("Horizontal", 76))
sketch1.addConstraint(Sketcher.Constraint("Vertical", 78))
sketch1.addConstraint(Sketcher.Constraint("Horizontal", 80))
sketch1.addConstraint(Sketcher.Constraint("Vertical", 82))
sketch1.addConstraint(Sketcher.Constraint("Horizontal", 84))
sketch1.addConstraint(Sketcher.Constraint("Vertical", 86))
sketch1.addConstraint(Sketcher.Constraint("Coincident", 88, 3, -1, 1))
sketch1.addConstraint(Sketcher.Constraint("Equal", 5, 7))
sketch1.addConstraint(Sketcher.Constraint("Equal", 3, 9))
sketch1.addConstraint(Sketcher.Constraint("Equal", 1, 11))
sketch1.addConstraint(Sketcher.Constraint("Equal", 11, 13))
sketch1.addConstraint(Sketcher.Constraint("Equal", 13, 15))
sketch1.addConstraint(Sketcher.Constraint("Equal", 15, 19))
sketch1.addConstraint(Sketcher.Constraint("Equal", 19, 21))
sketch1.addConstraint(Sketcher.Constraint("Equal", 21, 23))
sketch1.addConstraint(Sketcher.Constraint("Equal", 9, 25))
sketch1.addConstraint(Sketcher.Constraint("Equal", 27, 29))
sketch1.addConstraint(Sketcher.Constraint("Equal", 25, 31))
sketch1.addConstraint(Sketcher.Constraint("Equal", 23, 33))
sketch1.addConstraint(Sketcher.Constraint("Equal", 33, 35))
sketch1.addConstraint(Sketcher.Constraint("Equal", 35, 37))
sketch1.addConstraint(Sketcher.Constraint("Equal", 17, 39))
sketch1.addConstraint(Sketcher.Constraint("Equal", 37, 41))
sketch1.addConstraint(Sketcher.Constraint("Equal", 41, 43))
sketch1.addConstraint(Sketcher.Constraint("Equal", 43, 45))
sketch1.addConstraint(Sketcher.Constraint("Equal", 31, 47))
sketch1.addConstraint(Sketcher.Constraint("Equal", 7, 49))
sketch1.addConstraint(Sketcher.Constraint("Equal", 49, 51))
sketch1.addConstraint(Sketcher.Constraint("Equal", 47, 53))
sketch1.addConstraint(Sketcher.Constraint("Equal", 45, 55))
sketch1.addConstraint(Sketcher.Constraint("Equal", 55, 57))
sketch1.addConstraint(Sketcher.Constraint("Equal", 57, 59))
sketch1.addConstraint(Sketcher.Constraint("Equal", 39, 61))
sketch1.addConstraint(Sketcher.Constraint("Equal", 59, 63))
sketch1.addConstraint(Sketcher.Constraint("Equal", 63, 65))
sketch1.addConstraint(Sketcher.Constraint("Equal", 65, 67))
sketch1.addConstraint(Sketcher.Constraint("Equal", 53, 69))
sketch1.addConstraint(Sketcher.Constraint("Equal", 29, 71))
sketch1.addConstraint(Sketcher.Constraint("Equal", 71, 73))
sketch1.addConstraint(Sketcher.Constraint("Equal", 69, 75))
sketch1.addConstraint(Sketcher.Constraint("Equal", 67, 77))
sketch1.addConstraint(Sketcher.Constraint("Equal", 77, 79))
sketch1.addConstraint(Sketcher.Constraint("Equal", 79, 81))
sketch1.addConstraint(Sketcher.Constraint("Equal", 61, 83))
sketch1.addConstraint(Sketcher.Constraint("Equal", 81, 85))
sketch1.addConstraint(Sketcher.Constraint("Equal", 85, 87))
sketch1.addConstraint(Sketcher.Constraint("Symmetric", 1, 3, 45, 3, -1, 1))
sketch1.addConstraint(Sketcher.Constraint("Symmetric", 5, 3, 49, 3, -1, 1))
sketch1.addConstraint(Sketcher.Constraint("Symmetric", 9, 3, 53, 3, -1, 1))
sketch1.addConstraint(Sketcher.Constraint("Symmetric", 13, 3, 57, 3, -1, 1))
sketch1.addConstraint(Sketcher.Constraint("Symmetric", 17, 3, 61, 3, -1, 1))
sketch1.addConstraint(Sketcher.Constraint("Symmetric", 27, 3, 71, 3, -1, 1))
sketch1.addConstraint(Sketcher.Constraint("Symmetric", 31, 3, 75, 3, -1, 1))
sketch1.addConstraint(Sketcher.Constraint("Symmetric", 41, 3, 85, 3, -1, 1))
sketch1.addConstraint(Sketcher.Constraint("Symmetric", 3, 3, 9, 3, -2))
sketch1.addConstraint(Sketcher.Constraint("Symmetric", 43, 3, 57, 3, -2))
sketch1.addConstraint(Sketcher.Constraint("Symmetric", 39, 3, 61, 3, -2))
sketch1.addConstraint(Sketcher.Constraint("Symmetric", 23, 3, 77, 3, -2))
sketch1.addConstraint(Sketcher.Constraint("Symmetric", 48, 2, 51, 1, -2))
sketch1.addConstraint(Sketcher.Constraint("Symmetric", 29, 1, 70, 2, -2))
sketch1.addConstraint(Sketcher.Constraint("Symmetric", 26, 2, 73, 1, -2))
sketch1.addConstraint(Sketcher.Constraint("Symmetric", 21, 3, 35, 3, -1))
sketch1.addConstraint(Sketcher.Constraint("Perpendicular", 4, 8))
sketch1.addConstraint(Sketcher.Constraint("Parallel", 8, 26))
sketch1.addConstraint(Sketcher.Constraint("Perpendicular", 26, 30))
sketch1.addConstraint(Sketcher.Constraint("Horizontal", 78, 2, 81, 2))
sketch1.addConstraint(Sketcher.Constraint("Vertical", 64, 2, 79, 2))
sketch1.addConstraint(Sketcher.Constraint("Vertical", 63, 2, 80, 2))
sketch1.addConstraint(Sketcher.Constraint("Vertical", 62, 2, 81, 2))
sketch1.addConstraint(Sketcher.Constraint("Equal", 60, 18))
sketch1.addConstraint(Sketcher.Constraint("Diameter", 88, 6.8))
sketch1.addConstraint(Sketcher.Constraint("Angle", 68, Q("-2 deg")))
sketch1.addConstraint(Sketcher.Constraint("Radius", 1, 1.57))
sketch1.addConstraint(Sketcher.Constraint("Radius", 3, 0.76))
sketch1.addConstraint(Sketcher.Constraint("Radius", 17, 3.17))
sketch1.addConstraint(Sketcher.Constraint("Radius", 27, 4.75))
sketch1.addConstraint(Sketcher.Constraint("DistanceX", 16, 1, 16, 2, 11.2))
sketch1.addConstraint(Sketcher.Constraint("DistanceY", 15, 2, -1, 1, 20.0))
sketch1.addConstraint(Sketcher.Constraint("DistanceX", -1, 1, 17, 2, 20.0))
sketch1.addConstraint(Sketcher.Constraint("DistanceX", 64, 1, 64, 2, 1.18))
sketch1.addConstraint(Sketcher.Constraint("DistanceX", 0, 2, 0, 1, 3.085))
sketch1.addConstraint(Sketcher.Constraint("Radius", 5, 4.864551))
sketch1.addConstraint(Sketcher.Constraint("DistanceY", 22, 2, 22, 1, 3.085399))
sketch1.addConstraint(Sketcher.Constraint("DistanceX", -1, 1, 27, 3, 12.435))
sketch1.addConstraint(Sketcher.Constraint("DistanceY", 5, 1, -1, 1, 7.685))
sketch1.addConstraint(Sketcher.Constraint("DistanceY", -1, 1, 68, 2, 10.033001))
sketch1.addConstraint(Sketcher.Constraint("DistanceX", 6, 1, 6, 2, 5.554671))
sketch1.addConstraint(Sketcher.Constraint("DistanceX", 24, 2, 24, 1, 0.489942))
sketch1.addConstraint(Sketcher.Constraint("DistanceY", 2, 1, 2, 2, 0.462111))
sketch1.addConstraint(Sketcher.Constraint("DistanceY", 28, 1, 28, 2, 5.001569))
sketch1.addConstraint(Sketcher.Constraint("DistanceY", 62, 2, 62, 1, 11.257021))
sketch1.addConstraint(Sketcher.Constraint("DistanceY", 78, 1, 78, 2, 2.95748))
sketch1.addConstraint(Sketcher.Constraint("DistanceY", 82, 2, 82, 1, 11.260449))
sketch1.addConstraint(Sketcher.Constraint("DistanceX", 68, 2, -1, 1, 13.719899))
sketch1.addConstraint(Sketcher.Constraint("DistanceX", 75, 1, -1, 1, 13.816899))
sketch1.addConstraint(Sketcher.Constraint("DistanceX", 20, 2, 20, 1, 1.180004))
sketch1.addConstraint(Sketcher.Constraint("DistanceX", 84, 1, 84, 2, 11.044615))
sketch1.addConstraint(Sketcher.Constraint("DistanceX", -1, 1, 25, 3, 13.811732))
sketch1.addConstraint(Sketcher.Constraint("DistanceY", 79, 3, -1, 1, 5.690449))
pad1 = body.newObject("PartDesign::Pad", "Pad")
pad1.Profile = sketch1
pad1.Length = 280
pad1.Reversed = True

doc.recompute()
